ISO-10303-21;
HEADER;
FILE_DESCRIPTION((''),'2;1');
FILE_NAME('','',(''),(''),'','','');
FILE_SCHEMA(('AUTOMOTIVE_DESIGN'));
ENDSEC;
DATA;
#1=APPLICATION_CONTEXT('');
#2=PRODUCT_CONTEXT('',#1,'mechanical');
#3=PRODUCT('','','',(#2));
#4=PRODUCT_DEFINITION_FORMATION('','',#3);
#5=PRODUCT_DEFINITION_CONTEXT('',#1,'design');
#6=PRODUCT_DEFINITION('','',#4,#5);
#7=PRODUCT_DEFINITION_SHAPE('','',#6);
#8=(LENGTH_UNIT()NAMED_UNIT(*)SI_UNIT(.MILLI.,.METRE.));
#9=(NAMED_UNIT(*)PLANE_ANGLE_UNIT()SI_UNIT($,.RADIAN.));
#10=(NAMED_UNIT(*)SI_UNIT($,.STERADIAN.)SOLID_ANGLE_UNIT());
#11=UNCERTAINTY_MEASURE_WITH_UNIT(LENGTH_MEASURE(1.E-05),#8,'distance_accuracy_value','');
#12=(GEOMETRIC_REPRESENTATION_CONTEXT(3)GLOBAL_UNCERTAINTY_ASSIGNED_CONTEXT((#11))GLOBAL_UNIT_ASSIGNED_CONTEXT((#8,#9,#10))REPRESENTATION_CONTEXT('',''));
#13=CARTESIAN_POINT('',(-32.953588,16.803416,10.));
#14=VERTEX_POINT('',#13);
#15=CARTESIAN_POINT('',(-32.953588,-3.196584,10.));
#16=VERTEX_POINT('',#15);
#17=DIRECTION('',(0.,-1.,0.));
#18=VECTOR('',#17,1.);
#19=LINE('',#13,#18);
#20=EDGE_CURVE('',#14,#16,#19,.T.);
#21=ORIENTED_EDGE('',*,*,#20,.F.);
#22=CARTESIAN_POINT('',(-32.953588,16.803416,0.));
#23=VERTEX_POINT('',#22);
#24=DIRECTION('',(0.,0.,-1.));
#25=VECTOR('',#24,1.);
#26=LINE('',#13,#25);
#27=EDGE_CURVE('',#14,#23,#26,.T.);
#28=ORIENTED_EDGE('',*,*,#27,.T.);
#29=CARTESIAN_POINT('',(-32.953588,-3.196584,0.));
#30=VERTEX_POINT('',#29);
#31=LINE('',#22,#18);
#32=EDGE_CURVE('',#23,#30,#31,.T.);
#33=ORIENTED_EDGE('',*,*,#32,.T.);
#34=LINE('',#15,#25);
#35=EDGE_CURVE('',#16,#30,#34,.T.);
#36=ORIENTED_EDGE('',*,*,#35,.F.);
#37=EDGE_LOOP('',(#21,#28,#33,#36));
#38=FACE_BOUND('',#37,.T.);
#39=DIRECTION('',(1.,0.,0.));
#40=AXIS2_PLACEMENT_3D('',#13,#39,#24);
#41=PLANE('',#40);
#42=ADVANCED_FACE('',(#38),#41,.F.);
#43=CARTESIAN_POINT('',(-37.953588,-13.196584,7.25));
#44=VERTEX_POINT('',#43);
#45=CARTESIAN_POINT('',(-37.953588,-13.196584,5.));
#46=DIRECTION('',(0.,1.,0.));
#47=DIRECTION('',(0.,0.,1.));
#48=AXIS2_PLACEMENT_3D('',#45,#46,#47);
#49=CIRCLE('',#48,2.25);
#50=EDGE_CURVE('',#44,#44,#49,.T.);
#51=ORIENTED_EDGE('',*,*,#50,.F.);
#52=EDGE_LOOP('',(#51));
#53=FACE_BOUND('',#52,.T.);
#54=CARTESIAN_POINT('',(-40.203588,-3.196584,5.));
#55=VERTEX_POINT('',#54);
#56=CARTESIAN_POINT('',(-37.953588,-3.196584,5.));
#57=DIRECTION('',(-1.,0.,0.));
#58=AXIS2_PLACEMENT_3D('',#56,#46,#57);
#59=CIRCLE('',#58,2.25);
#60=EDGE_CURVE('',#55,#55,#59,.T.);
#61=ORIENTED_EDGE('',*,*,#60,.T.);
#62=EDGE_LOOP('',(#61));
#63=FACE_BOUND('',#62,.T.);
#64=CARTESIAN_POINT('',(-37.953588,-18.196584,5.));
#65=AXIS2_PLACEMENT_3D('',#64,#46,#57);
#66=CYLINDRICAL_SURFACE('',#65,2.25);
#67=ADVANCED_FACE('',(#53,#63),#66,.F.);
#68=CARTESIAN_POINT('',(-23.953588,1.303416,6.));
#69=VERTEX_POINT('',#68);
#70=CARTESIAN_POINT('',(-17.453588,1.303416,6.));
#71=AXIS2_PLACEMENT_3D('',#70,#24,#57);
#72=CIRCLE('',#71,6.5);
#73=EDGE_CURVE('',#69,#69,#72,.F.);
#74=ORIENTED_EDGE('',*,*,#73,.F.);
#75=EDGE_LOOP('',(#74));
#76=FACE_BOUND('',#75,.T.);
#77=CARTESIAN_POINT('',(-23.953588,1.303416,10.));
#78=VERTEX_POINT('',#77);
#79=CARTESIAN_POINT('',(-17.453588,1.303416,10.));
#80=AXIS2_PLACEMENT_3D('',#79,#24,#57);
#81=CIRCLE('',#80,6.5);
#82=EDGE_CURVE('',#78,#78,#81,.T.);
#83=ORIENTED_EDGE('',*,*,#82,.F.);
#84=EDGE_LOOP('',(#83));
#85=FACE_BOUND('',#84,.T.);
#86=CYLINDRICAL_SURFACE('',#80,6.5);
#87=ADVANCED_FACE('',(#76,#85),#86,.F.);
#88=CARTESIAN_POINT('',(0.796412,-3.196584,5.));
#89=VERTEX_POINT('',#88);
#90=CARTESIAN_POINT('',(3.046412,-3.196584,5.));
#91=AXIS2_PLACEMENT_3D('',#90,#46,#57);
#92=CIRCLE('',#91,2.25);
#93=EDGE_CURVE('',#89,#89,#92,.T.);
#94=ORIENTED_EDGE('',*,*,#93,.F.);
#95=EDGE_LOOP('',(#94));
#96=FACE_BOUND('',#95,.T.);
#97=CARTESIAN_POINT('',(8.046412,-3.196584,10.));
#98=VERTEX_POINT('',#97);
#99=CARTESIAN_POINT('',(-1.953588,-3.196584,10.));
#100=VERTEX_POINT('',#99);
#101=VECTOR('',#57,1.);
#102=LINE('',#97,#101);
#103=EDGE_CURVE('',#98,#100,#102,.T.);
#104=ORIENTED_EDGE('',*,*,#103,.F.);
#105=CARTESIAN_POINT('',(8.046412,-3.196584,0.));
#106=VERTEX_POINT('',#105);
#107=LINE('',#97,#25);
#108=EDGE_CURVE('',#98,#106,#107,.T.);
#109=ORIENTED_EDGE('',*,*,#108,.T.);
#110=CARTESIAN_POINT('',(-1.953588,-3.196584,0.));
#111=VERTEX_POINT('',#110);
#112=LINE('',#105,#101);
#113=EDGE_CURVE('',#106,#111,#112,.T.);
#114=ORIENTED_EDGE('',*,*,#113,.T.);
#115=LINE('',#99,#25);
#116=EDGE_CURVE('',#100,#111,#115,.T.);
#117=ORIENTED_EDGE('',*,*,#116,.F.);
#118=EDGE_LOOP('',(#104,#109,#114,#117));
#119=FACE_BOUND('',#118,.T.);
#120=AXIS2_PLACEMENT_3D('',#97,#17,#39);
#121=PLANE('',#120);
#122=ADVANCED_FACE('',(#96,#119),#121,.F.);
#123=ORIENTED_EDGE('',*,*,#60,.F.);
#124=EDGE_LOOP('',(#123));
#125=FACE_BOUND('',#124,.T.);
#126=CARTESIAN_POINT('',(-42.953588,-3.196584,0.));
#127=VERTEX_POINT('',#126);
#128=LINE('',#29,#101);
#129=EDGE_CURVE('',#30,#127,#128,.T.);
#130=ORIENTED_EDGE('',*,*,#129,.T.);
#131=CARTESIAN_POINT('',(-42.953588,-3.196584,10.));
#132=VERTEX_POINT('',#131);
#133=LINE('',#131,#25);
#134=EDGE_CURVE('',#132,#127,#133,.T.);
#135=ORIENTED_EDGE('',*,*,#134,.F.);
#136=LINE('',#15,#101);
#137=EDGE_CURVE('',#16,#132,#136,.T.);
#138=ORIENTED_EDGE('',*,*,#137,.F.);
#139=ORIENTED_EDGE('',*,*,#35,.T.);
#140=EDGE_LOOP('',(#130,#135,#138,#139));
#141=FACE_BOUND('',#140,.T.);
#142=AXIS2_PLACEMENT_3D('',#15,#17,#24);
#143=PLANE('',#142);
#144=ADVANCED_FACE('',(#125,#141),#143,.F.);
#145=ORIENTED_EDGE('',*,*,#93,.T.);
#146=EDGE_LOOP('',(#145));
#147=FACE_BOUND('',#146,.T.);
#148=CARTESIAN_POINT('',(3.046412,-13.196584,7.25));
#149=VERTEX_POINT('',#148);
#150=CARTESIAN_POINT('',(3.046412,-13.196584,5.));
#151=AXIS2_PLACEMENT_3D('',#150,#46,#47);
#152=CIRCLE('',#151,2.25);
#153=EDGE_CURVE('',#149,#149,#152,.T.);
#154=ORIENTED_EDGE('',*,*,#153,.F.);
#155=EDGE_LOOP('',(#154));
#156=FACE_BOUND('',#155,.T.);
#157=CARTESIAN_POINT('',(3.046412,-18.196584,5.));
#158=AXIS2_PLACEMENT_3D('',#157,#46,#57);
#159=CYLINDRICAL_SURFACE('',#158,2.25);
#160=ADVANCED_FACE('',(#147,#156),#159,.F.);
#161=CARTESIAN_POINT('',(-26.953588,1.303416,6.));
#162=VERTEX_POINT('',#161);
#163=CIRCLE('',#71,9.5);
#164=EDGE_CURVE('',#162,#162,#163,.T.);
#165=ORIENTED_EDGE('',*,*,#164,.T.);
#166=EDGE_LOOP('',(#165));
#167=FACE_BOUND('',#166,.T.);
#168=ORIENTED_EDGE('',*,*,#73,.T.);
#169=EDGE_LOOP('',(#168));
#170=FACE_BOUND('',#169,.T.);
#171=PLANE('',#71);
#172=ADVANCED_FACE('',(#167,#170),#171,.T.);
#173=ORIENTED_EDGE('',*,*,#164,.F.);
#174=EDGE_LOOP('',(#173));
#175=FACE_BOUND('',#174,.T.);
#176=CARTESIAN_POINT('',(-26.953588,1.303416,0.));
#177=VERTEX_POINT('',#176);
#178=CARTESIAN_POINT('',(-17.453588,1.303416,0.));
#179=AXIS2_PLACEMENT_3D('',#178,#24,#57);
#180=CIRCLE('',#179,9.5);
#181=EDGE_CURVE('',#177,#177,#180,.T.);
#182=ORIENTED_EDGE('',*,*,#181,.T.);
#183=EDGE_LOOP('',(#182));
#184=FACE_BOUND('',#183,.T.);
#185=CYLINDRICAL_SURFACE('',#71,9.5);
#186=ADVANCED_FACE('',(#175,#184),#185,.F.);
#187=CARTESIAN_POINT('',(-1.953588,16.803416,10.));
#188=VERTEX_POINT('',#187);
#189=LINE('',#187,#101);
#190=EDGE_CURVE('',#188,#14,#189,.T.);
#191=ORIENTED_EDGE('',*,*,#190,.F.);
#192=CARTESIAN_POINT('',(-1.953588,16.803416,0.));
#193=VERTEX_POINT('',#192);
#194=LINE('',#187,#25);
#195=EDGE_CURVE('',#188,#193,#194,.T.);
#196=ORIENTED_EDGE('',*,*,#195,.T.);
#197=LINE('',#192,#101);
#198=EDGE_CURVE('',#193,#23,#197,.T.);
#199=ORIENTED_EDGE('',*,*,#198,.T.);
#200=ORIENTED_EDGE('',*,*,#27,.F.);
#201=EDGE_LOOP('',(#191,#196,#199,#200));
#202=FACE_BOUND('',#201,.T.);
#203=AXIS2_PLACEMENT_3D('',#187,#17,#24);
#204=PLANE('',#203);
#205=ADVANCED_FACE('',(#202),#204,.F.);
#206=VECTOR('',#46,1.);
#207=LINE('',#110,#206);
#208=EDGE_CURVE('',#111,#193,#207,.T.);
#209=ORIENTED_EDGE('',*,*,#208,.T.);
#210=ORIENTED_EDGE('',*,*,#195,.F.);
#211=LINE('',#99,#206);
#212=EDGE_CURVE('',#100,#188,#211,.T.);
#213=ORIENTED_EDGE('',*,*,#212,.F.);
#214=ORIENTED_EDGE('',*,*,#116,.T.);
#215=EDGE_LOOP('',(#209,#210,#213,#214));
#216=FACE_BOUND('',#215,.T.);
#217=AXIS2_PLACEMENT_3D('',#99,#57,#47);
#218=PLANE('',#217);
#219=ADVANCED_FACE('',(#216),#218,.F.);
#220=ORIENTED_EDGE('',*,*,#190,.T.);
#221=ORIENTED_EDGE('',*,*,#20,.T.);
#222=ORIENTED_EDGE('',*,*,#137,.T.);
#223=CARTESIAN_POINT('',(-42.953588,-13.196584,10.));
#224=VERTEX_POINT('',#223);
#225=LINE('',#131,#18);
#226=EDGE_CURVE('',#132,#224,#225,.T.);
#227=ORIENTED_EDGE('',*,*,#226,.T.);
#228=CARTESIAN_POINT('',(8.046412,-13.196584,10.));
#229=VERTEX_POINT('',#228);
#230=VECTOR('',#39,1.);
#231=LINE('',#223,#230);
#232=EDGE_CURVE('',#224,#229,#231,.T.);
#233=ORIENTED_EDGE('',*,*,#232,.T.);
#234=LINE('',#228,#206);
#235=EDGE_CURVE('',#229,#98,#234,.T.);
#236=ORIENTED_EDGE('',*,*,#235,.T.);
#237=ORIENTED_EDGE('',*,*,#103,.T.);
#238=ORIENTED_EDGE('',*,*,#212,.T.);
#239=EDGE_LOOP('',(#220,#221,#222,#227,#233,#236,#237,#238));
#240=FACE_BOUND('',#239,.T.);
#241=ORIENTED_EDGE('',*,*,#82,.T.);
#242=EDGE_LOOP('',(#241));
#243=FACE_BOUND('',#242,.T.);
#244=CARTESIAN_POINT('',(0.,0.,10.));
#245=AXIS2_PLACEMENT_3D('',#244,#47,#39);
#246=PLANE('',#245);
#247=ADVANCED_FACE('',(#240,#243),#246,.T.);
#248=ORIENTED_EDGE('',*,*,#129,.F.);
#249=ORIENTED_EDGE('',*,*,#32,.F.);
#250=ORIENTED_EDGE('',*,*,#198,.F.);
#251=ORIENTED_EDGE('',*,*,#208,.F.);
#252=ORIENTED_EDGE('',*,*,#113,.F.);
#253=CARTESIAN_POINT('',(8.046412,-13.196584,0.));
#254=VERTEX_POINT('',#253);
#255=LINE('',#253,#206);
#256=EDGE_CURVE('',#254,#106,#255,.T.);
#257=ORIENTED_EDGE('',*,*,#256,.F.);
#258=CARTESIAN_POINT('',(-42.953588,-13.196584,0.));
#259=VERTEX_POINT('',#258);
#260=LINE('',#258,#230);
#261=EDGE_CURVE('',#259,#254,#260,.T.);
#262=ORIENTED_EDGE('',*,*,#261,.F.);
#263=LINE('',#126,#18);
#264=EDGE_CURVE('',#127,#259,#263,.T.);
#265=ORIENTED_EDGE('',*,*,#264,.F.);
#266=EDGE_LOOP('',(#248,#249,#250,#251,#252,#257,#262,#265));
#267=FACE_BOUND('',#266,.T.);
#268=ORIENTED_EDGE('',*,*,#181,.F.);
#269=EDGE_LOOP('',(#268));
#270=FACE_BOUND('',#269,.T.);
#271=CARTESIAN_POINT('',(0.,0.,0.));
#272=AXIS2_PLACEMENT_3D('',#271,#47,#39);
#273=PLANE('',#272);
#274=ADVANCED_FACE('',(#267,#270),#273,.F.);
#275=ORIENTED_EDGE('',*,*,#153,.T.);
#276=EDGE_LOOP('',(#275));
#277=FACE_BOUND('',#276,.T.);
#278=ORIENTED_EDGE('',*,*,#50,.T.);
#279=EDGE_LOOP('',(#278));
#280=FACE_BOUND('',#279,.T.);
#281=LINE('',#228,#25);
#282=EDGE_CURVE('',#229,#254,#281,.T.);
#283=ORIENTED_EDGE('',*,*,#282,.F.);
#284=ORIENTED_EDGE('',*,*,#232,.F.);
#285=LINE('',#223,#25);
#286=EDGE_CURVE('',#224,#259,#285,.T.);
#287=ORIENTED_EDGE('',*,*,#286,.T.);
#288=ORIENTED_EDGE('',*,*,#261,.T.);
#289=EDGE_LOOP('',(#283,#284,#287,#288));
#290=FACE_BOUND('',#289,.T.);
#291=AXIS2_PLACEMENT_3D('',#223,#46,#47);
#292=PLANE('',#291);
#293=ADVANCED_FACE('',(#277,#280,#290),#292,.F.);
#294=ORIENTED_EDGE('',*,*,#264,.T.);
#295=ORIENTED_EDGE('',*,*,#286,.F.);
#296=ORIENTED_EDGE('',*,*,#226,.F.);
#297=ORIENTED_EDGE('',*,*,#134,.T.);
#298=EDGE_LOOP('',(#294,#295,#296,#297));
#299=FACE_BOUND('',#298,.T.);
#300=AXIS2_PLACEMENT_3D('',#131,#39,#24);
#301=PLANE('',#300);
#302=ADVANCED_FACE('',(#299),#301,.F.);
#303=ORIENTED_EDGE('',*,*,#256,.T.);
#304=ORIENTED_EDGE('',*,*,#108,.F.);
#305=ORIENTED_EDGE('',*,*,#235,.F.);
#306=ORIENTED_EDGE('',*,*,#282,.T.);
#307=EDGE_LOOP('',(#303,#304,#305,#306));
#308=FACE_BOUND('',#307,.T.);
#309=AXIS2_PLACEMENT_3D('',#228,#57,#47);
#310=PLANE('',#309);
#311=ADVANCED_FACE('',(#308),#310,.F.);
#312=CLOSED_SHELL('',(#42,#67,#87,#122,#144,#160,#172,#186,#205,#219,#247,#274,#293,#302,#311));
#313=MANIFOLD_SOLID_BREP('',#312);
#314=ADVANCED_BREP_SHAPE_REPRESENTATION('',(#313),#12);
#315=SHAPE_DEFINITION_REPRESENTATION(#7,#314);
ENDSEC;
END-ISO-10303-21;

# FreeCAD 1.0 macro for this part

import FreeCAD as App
import Part
import Sketcher
from FreeCAD import Vector
Q = App.Units.Quantity


def add_polygon(sketch, points):
    """Adds a closed chain of lines whose ends are joined by coincident constraints."""
    first, n = sketch.GeometryCount, len(points)
    for a, b in zip(points, points[1:] + points[:1]):
        sketch.addGeometry(Part.LineSegment(App.Vector(*a, 0), App.Vector(*b, 0)), False)
    for i in range(n):
        sketch.addConstraint(Sketcher.Constraint("Coincident", first + i, 2, first + (i + 1) % n, 1))

doc = App.newDocument("Part")
params = doc.addObject("Spreadsheet::Sheet", "Params")
for row, (alias, value) in enumerate([
    ("sketch1_width", "51 mm"),
    ("sketch1_width2", "10 mm"),
    ("sketch1_height", "20 mm"),
    ("pad1_length", "10 mm"),
    ("sketch2_diameter", "13 mm"),
    ("pocket1_length", "10 mm"),
    ("sketch3_diameter", "19 mm"),
    ("pocket2_length", "6 mm"),
    ("sketch4_diameter", "4.5 mm"),
    ("pocket3_length", "15 mm"),
], start=1):
    params.set(f"A{row}", alias)
    params.set(f"B{row}", "=" + value)
    params.setAlias(f"B{row}", alias)

body = doc.addObject("PartDesign::Body", "Body")

# Sketch on XY plane
sketch1 = body.newObject("Sketcher::SketchObject", "Sketch")
sketch1.AttachmentSupport = (doc.getObject("XY_Plane"), [""])
sketch1.MapMode = "FlatFace"
add_polygon(sketch1, [(-43, -13), (8, -13), (8, -3), (-2, -3), (-2, 17), (-33, 17), (-33, -3), (-43, -3)])  # lines 0-7
sketch1.addConstraint(Sketcher.Constraint("Horizontal", 0))
sketch1.addConstraint(Sketcher.Constraint("Vertical", 1))
sketch1.addConstraint(Sketcher.Constraint("Horizontal", 2))
sketch1.addConstraint(Sketcher.Constraint("Vertical", 3))
sketch1.addConstraint(Sketcher.Constraint("Horizontal", 4))
sketch1.addConstraint(Sketcher.Constraint("Vertical", 5))
sketch1.addConstraint(Sketcher.Constraint("Horizontal", 6))
sketch1.addConstraint(Sketcher.Constraint("Vertical", 7))
sketch1.addConstraint(Sketcher.Constraint("Horizontal", 2, 2, 5, 2))
sketch1.addConstraint(Sketcher.Constraint("Equal", 2, 6))
sketch1.addConstraint(Sketcher.Constraint("Equal", 6, 1))
sketch1.addConstraint(Sketcher.Constraint("DistanceX", 0, 1, 0, 2, Q("51 mm")))
sketch1.addConstraint(Sketcher.Constraint("DistanceX", 2, 2, 2, 1, Q("10 mm")))
sketch1.addConstraint(Sketcher.Constraint("DistanceY", 3, 1, 3, 2, Q("20 mm")))
sketch1.addConstraint(Sketcher.Constraint("DistanceX", -1, 1, 0, 2, Q("8.046412 mm")))
sketch1.addConstraint(Sketcher.Constraint("DistanceY", 0, 2, -1, 1, Q("13.196584 mm")))
sketch1.setExpression("Constraints[19]", "Params.sketch1_width")
sketch1.setExpression("Constraints[20]", "Params.sketch1_width2")
sketch1.setExpression("Constraints[21]", "Params.sketch1_height")
pad1 = body.newObject("PartDesign::Pad", "Pad")
pad1.Profile = sketch1
pad1.setExpression("Length", "Params.pad1_length")

# Sketch on XY plane
sketch2 = body.newObject("Sketcher::SketchObject", "Sketch001")
sketch2.AttachmentSupport = (doc.getObject("XY_Plane"), [""])
sketch2.MapMode = "FlatFace"
sketch2.addGeometry(Part.Circle(Vector(-17, 1, 0), Vector(0, 0, 1), 6), False)
sketch2.addConstraint(Sketcher.Constraint("Diameter", 0, Q("13 mm")))
sketch2.addConstraint(Sketcher.Constraint("DistanceX", 0, 3, -1, 1, Q("17.453588 mm")))
sketch2.addConstraint(Sketcher.Constraint("DistanceY", -1, 1, 0, 3, Q("1.303416 mm")))
sketch2.setExpression("Constraints[0]", "Params.sketch2_diameter")
pocket1 = body.newObject("PartDesign::Pocket", "Pocket")
pocket1.Profile = sketch2
pocket1.setExpression("Length", "Params.pocket1_length")
pocket1.Reversed = True

# Sketch on XY plane
sketch3 = body.newObject("Sketcher::SketchObject", "Sketch002")
sketch3.AttachmentSupport = (doc.getObject("XY_Plane"), [""])
sketch3.MapMode = "FlatFace"
sketch3.addGeometry(Part.Circle(Vector(-17, 1, 0), Vector(0, 0, 1), 10), False)
sketch3.addConstraint(Sketcher.Constraint("Diameter", 0, Q("19 mm")))
sketch3.addConstraint(Sketcher.Constraint("DistanceX", 0, 3, -1, 1, Q("17.453588 mm")))
sketch3.addConstraint(Sketcher.Constraint("DistanceY", -1, 1, 0, 3, Q("1.303416 mm")))
sketch3.setExpression("Constraints[0]", "Params.sketch3_diameter")
pocket2 = body.newObject("PartDesign::Pocket", "Pocket001")
pocket2.Profile = sketch3
pocket2.setExpression("Length", "Params.pocket2_length")
pocket2.Reversed = True

# Sketch on XZ plane
sketch4 = body.newObject("Sketcher::SketchObject", "Sketch003")
sketch4.AttachmentSupport = (doc.getObject("XZ_Plane"), [""])
sketch4.MapMode = "FlatFace"
sketch4.AttachmentOffset = App.Placement(Vector(0, 0, 3.196584), App.Rotation())
sketch4.addGeometry(Part.Circle(Vector(3, 5, 0), Vector(0, 0, 1), 2.2), False)
sketch4.addGeometry(Part.Circle(Vector(-38, 5, 0), Vector(0, 0, 1), 2.2), False)
sketch4.addConstraint(Sketcher.Constraint("Equal", 0, 1))
sketch4.addConstraint(Sketcher.Constraint("Horizontal", 0, 3, 1, 3))
sketch4.addConstraint(Sketcher.Constraint("Diameter", 0, Q("4.5 mm")))
sketch4.addConstraint(Sketcher.Constraint("DistanceY", -1, 1, 0, 3, Q("5 mm")))
sketch4.addConstraint(Sketcher.Constraint("DistanceX", 1, 3, 0, 3, Q("41 mm")))
sketch4.addConstraint(Sketcher.Constraint("DistanceX", -1, 1, 0, 3, Q("3.046412 mm")))
sketch4.setExpression("Constraints[2]", "Params.sketch4_diameter")
pocket3 = body.newObject("PartDesign::Pocket", "Pocket002")
pocket3.Profile = sketch4
pocket3.setExpression("Length", "Params.pocket3_length")
pocket3.Reversed = True

doc.recompute()
